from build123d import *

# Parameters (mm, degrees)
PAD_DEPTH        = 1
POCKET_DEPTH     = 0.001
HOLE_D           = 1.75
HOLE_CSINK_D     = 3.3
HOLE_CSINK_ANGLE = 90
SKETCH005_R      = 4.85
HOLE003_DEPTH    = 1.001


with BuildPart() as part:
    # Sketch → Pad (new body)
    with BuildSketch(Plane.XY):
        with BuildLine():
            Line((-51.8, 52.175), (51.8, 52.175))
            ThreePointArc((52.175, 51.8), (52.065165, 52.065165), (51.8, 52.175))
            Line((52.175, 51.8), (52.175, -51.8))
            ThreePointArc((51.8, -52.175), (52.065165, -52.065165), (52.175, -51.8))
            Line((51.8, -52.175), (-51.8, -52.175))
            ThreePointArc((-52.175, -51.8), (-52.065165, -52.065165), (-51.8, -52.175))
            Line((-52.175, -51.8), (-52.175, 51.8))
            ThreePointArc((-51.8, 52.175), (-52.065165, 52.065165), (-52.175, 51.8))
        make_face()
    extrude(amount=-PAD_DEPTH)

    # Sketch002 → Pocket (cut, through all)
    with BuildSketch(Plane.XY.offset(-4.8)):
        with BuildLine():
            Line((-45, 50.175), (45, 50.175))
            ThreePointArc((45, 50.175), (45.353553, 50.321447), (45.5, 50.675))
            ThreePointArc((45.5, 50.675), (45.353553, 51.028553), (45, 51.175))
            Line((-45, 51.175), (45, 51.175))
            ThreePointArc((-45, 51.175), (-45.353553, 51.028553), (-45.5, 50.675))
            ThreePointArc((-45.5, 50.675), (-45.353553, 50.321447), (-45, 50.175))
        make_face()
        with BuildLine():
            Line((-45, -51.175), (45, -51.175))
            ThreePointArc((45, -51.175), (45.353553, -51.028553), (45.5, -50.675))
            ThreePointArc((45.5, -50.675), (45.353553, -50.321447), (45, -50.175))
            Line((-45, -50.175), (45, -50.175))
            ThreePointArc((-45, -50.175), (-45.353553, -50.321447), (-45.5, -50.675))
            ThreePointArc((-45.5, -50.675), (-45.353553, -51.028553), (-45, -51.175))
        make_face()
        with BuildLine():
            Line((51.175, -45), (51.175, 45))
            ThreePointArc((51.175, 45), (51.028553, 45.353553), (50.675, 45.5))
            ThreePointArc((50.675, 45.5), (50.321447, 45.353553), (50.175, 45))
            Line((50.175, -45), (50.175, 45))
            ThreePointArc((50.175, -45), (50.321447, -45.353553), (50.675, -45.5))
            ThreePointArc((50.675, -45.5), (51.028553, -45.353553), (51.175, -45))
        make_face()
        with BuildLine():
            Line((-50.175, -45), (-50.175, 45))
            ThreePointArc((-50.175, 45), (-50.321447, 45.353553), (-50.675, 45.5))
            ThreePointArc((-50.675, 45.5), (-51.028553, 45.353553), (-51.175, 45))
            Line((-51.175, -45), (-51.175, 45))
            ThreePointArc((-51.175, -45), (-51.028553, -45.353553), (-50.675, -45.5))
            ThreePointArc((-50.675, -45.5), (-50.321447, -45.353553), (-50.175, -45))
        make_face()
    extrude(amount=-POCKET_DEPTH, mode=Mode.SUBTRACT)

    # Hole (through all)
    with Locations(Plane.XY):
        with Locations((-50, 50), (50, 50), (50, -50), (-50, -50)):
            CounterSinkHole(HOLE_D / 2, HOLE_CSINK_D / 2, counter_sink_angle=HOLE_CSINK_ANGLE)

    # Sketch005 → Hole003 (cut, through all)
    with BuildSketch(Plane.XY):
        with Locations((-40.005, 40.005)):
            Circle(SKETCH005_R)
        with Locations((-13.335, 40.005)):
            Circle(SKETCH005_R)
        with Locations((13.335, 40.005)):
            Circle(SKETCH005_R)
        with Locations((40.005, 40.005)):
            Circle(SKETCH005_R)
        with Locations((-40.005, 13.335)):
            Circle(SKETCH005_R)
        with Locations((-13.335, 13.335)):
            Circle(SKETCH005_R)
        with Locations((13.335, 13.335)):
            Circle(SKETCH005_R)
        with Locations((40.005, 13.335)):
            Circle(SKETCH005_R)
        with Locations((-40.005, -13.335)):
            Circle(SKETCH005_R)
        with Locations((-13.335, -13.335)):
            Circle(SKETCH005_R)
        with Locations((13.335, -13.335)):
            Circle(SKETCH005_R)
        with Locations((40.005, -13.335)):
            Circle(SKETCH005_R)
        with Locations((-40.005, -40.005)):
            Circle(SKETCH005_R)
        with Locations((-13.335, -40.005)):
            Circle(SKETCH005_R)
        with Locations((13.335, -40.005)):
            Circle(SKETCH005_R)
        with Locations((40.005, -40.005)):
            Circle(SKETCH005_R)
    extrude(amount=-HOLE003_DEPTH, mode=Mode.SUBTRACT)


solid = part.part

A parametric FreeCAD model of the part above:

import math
import FreeCAD as App
import Part
import Sketcher

V = App.Vector
Q = App.Units.Quantity

doc = App.newDocument("Part")
params = doc.addObject("Spreadsheet::Sheet", "Params")
for row, (alias, value) in enumerate([
    ("sketch1_width", "103.6 mm"),
    ("pad1_length", "1 mm"),
    ("sketch2_radius", "0.500001 mm"),
    ("sketch2_width", "90 mm"),
    ("sketch3_diameter", "1.75 mm"),
    ("hole_diameter", "1.75 mm"),
    ("hole_csink_diameter", "3.3 mm"),
    ("sketch4_diameter", "9.7 mm"),
], start=1):
    params.set(f"A{row}", alias)
    params.set(f"B{row}", "=" + value)
    params.setAlias(f"B{row}", alias)

body = doc.addObject("PartDesign::Body", "Body")

# Sketch on XY plane
sketch1 = body.newObject("Sketcher::SketchObject", "Sketch")
sketch1.AttachmentSupport = (doc.getObject("XY_Plane"), [""])
sketch1.MapMode = "FlatFace"
sketch1.addGeometry(Part.LineSegment(V(51.8, 52.17, 0), V(-51.8, 52.17, 0)), False)
sketch1.addGeometry(Part.ArcOfCircle(Part.Circle(V(-51.8, 51.8, 0), V(0, 0, 1), 0.38), math.radians(90), math.radians(180)), False)
sketch1.addGeometry(Part.LineSegment(V(-52.17, 51.8, 0), V(-52.17, -51.8, 0)), False)
sketch1.addGeometry(Part.ArcOfCircle(Part.Circle(V(-51.8, -51.8, 0), V(0, 0, 1), 0.38), math.radians(-180), math.radians(-90)), False)
sketch1.addGeometry(Part.LineSegment(V(-51.8, -52.17, 0), V(51.8, -52.17, 0)), False)
sketch1.addGeometry(Part.ArcOfCircle(Part.Circle(V(51.8, -51.8, 0), V(0, 0, 1), 0.38), math.radians(-90), math.radians(0)), False)
sketch1.addGeometry(Part.LineSegment(V(52.17, -51.8, 0), V(52.17, 51.8, 0)), False)
sketch1.addGeometry(Part.ArcOfCircle(Part.Circle(V(51.8, 51.8, 0), V(0, 0, 1), 0.38), math.radians(0), math.radians(90)), False)
sketch1.addConstraint(Sketcher.Constraint("Tangent", 0, 2, 1, 1))
sketch1.addConstraint(Sketcher.Constraint("Tangent", 1, 2, 2, 1))
sketch1.addConstraint(Sketcher.Constraint("Tangent", 2, 2, 3, 1))
sketch1.addConstraint(Sketcher.Constraint("Tangent", 3, 2, 4, 1))
sketch1.addConstraint(Sketcher.Constraint("Tangent", 4, 2, 5, 1))
sketch1.addConstraint(Sketcher.Constraint("Tangent", 5, 2, 6, 1))
sketch1.addConstraint(Sketcher.Constraint("Tangent", 6, 2, 7, 1))
sketch1.addConstraint(Sketcher.Constraint("Tangent", 7, 2, 0, 1))
sketch1.addConstraint(Sketcher.Constraint("Horizontal", 0))
sketch1.addConstraint(Sketcher.Constraint("Vertical", 2))
sketch1.addConstraint(Sketcher.Constraint("Horizontal", 4))
sketch1.addConstraint(Sketcher.Constraint("Vertical", 6))
sketch1.addConstraint(Sketcher.Constraint("Equal", 1, 3))
sketch1.addConstraint(Sketcher.Constraint("Equal", 3, 5))
sketch1.addConstraint(Sketcher.Constraint("Equal", 5, 7))
sketch1.addConstraint(Sketcher.Constraint("Symmetric", 1, 3, 5, 3, -1, 1))
sketch1.addConstraint(Sketcher.Constraint("Equal", 4, 2))
sketch1.addConstraint(Sketcher.Constraint("DistanceX", 0, 2, 0, 1, Q("103.6 mm")))
sketch1.addConstraint(Sketcher.Constraint("Radius", 1, Q("0.375 mm")))
sketch1.setExpression("Constraints[17]", "Params.sketch1_width")
pad1 = body.newObject("PartDesign::Pad", "Pad")
pad1.Profile = sketch1
pad1.setExpression("Length", "Params.pad1_length")
pad1.Reversed = True

# Sketch on XY plane
sketch2 = body.newObject("Sketcher::SketchObject", "Sketch001")
sketch2.AttachmentSupport = (doc.getObject("XY_Plane"), [""])
sketch2.MapMode = "FlatFace"
sketch2.AttachmentOffset = App.Placement(V(0, 0, -4.8), App.Rotation())
sketch2.addGeometry(Part.LineSegment(V(-45, 50.2, 0), V(45, 50.2, 0)), False)
sketch2.addGeometry(Part.ArcOfCircle(Part.Circle(V(45, 50.7, 0), V(0, 0, 1), 0.5), math.radians(-90), math.radians(0)), False)
sketch2.addGeometry(Part.ArcOfCircle(Part.Circle(V(45, 50.7, 0), V(0, 0, 1), 0.5), math.radians(0), math.radians(90)), False)
sketch2.addGeometry(Part.LineSegment(V(45, 51.2, 0), V(-45, 51.2, 0)), False)
sketch2.addGeometry(Part.ArcOfCircle(Part.Circle(V(-45, 50.7, 0), V(0, 0, 1), 0.5), math.radians(90), math.radians(180)), False)
sketch2.addGeometry(Part.ArcOfCircle(Part.Circle(V(-45, 50.7, 0), V(0, 0, 1), 0.5), math.radians(-180), math.radians(-90)), False)
sketch2.addGeometry(Part.LineSegment(V(-45, -51.2, 0), V(45, -51.2, 0)), False)
sketch2.addGeometry(Part.ArcOfCircle(Part.Circle(V(45, -50.7, 0), V(0, 0, 1), 0.5), math.radians(-90), math.radians(0)), False)
sketch2.addGeometry(Part.ArcOfCircle(Part.Circle(V(45, -50.7, 0), V(0, 0, 1), 0.5), math.radians(0), math.radians(90)), False)
sketch2.addGeometry(Part.LineSegment(V(45, -50.2, 0), V(-45, -50.2, 0)), False)
sketch2.addGeometry(Part.ArcOfCircle(Part.Circle(V(-45, -50.7, 0), V(0, 0, 1), 0.5), math.radians(90), math.radians(180)), False)
sketch2.addGeometry(Part.ArcOfCircle(Part.Circle(V(-45, -50.7, 0), V(0, 0, 1), 0.5), math.radians(-180), math.radians(-90)), False)
sketch2.addGeometry(Part.LineSegment(V(51.2, -45, 0), V(51.2, 45, 0)), False)
sketch2.addGeometry(Part.ArcOfCircle(Part.Circle(V(50.7, 45, 0), V(0, 0, 1), 0.5), math.radians(0), math.radians(90)), False)
sketch2.addGeometry(Part.ArcOfCircle(Part.Circle(V(50.7, 45, 0), V(0, 0, 1), 0.5), math.radians(90), math.radians(180)), False)
sketch2.addGeometry(Part.LineSegment(V(50.2, 45, 0), V(50.2, -45, 0)), False)
sketch2.addGeometry(Part.ArcOfCircle(Part.Circle(V(50.7, -45, 0), V(0, 0, 1), 0.5), math.radians(-180), math.radians(-90)), False)
sketch2.addGeometry(Part.ArcOfCircle(Part.Circle(V(50.7, -45, 0), V(0, 0, 1), 0.5), math.radians(-90), math.radians(0)), False)
sketch2.addGeometry(Part.LineSegment(V(-50.2, -45, 0), V(-50.2, 45, 0)), False)
sketch2.addGeometry(Part.ArcOfCircle(Part.Circle(V(-50.7, 45, 0), V(0, 0, 1), 0.5), math.radians(0), math.radians(90)), False)
sketch2.addGeometry(Part.ArcOfCircle(Part.Circle(V(-50.7, 45, 0), V(0, 0, 1), 0.5), math.radians(90), math.radians(180)), False)
sketch2.addGeometry(Part.LineSegment(V(-51.2, 45, 0), V(-51.2, -45, 0)), False)
sketch2.addGeometry(Part.ArcOfCircle(Part.Circle(V(-50.7, -45, 0), V(0, 0, 1), 0.5), math.radians(-180), math.radians(-90)), False)
sketch2.addGeometry(Part.ArcOfCircle(Part.Circle(V(-50.7, -45, 0), V(0, 0, 1), 0.5), math.radians(-90), math.radians(0)), False)
sketch2.addConstraint(Sketcher.Constraint("Coincident", 0, 2, 1, 1))
sketch2.addConstraint(Sketcher.Constraint("Coincident", 1, 2, 2, 1))
sketch2.addConstraint(Sketcher.Constraint("Coincident", 2, 2, 3, 1))
sketch2.addConstraint(Sketcher.Constraint("Coincident", 3, 2, 4, 1))
sketch2.addConstraint(Sketcher.Constraint("Coincident", 4, 2, 5, 1))
sketch2.addConstraint(Sketcher.Constraint("Coincident", 5, 2, 0, 1))
sketch2.addConstraint(Sketcher.Constraint("Coincident", 6, 2, 7, 1))
sketch2.addConstraint(Sketcher.Constraint("Coincident", 7, 2, 8, 1))
sketch2.addConstraint(Sketcher.Constraint("Coincident", 8, 2, 9, 1))
sketch2.addConstraint(Sketcher.Constraint("Coincident", 9, 2, 10, 1))
sketch2.addConstraint(Sketcher.Constraint("Coincident", 10, 2, 11, 1))
sketch2.addConstraint(Sketcher.Constraint("Coincident", 11, 2, 6, 1))
sketch2.addConstraint(Sketcher.Constraint("Coincident", 12, 2, 13, 1))
sketch2.addConstraint(Sketcher.Constraint("Coincident", 13, 2, 14, 1))
sketch2.addConstraint(Sketcher.Constraint("Coincident", 14, 2, 15, 1))
sketch2.addConstraint(Sketcher.Constraint("Coincident", 15, 2, 16, 1))
sketch2.addConstraint(Sketcher.Constraint("Coincident", 16, 2, 17, 1))
sketch2.addConstraint(Sketcher.Constraint("Coincident", 17, 2, 12, 1))
sketch2.addConstraint(Sketcher.Constraint("Coincident", 18, 2, 19, 1))
sketch2.addConstraint(Sketcher.Constraint("Coincident", 19, 2, 20, 1))
sketch2.addConstraint(Sketcher.Constraint("Coincident", 20, 2, 21, 1))
sketch2.addConstraint(Sketcher.Constraint("Coincident", 21, 2, 22, 1))
sketch2.addConstraint(Sketcher.Constraint("Coincident", 22, 2, 23, 1))
sketch2.addConstraint(Sketcher.Constraint("Coincident", 23, 2, 18, 1))
sketch2.addConstraint(Sketcher.Constraint("Horizontal", 0))
sketch2.addConstraint(Sketcher.Constraint("Horizontal", 3))
sketch2.addConstraint(Sketcher.Constraint("Horizontal", 6))
sketch2.addConstraint(Sketcher.Constraint("Horizontal", 9))
sketch2.addConstraint(Sketcher.Constraint("Vertical", 12))
sketch2.addConstraint(Sketcher.Constraint("Vertical", 15))
sketch2.addConstraint(Sketcher.Constraint("Vertical", 18))
sketch2.addConstraint(Sketcher.Constraint("Vertical", 21))
sketch2.addConstraint(Sketcher.Constraint("Coincident", 2, 3, 1, 3))
sketch2.addConstraint(Sketcher.Constraint("Coincident", 5, 3, 4, 3))
sketch2.addConstraint(Sketcher.Constraint("Coincident", 8, 3, 7, 3))
sketch2.addConstraint(Sketcher.Constraint("Coincident", 11, 3, 10, 3))
sketch2.addConstraint(Sketcher.Constraint("Coincident", 14, 3, 13, 3))
sketch2.addConstraint(Sketcher.Constraint("Coincident", 17, 3, 16, 3))
sketch2.addConstraint(Sketcher.Constraint("Coincident", 20, 3, 19, 3))
sketch2.addConstraint(Sketcher.Constraint("Coincident", 23, 3, 22, 3))
sketch2.addConstraint(Sketcher.Constraint("Equal", 5, 7))
sketch2.addConstraint(Sketcher.Constraint("Equal", 11, 13))
sketch2.addConstraint(Sketcher.Constraint("Equal", 17, 19))
sketch2.addConstraint(Sketcher.Constraint("Symmetric", 4, 3, 7, 3, -1, 1))
sketch2.addConstraint(Sketcher.Constraint("Symmetric", 16, 3, 19, 3, -1, 1))
sketch2.addConstraint(Sketcher.Constraint("Symmetric", 1, 2, 10, 2, -1, 1))
sketch2.addConstraint(Sketcher.Constraint("Symmetric", 13, 2, 22, 2, -1, 1))
sketch2.addConstraint(Sketcher.Constraint("Symmetric", 1, 2, 4, 2, -2))
sketch2.addConstraint(Sketcher.Constraint("Symmetric", 13, 2, 19, 2, -2))
sketch2.addConstraint(Sketcher.Constraint("Horizontal", 5, 3, 1, 2))
sketch2.addConstraint(Sketcher.Constraint("Horizontal", 11, 3, 7, 2))
sketch2.addConstraint(Sketcher.Constraint("Horizontal", 20, 3, 12, 2))
sketch2.addConstraint(Sketcher.Constraint("Horizontal", 12, 2, 14, 2))
sketch2.addConstraint(Sketcher.Constraint("Horizontal", 23, 3, 15, 2))
sketch2.addConstraint(Sketcher.Constraint("Horizontal", 15, 2, 17, 2))
sketch2.addConstraint(Sketcher.Constraint("Horizontal", 14, 2, 18, 2))
sketch2.addConstraint(Sketcher.Constraint("Horizontal", 18, 2, 20, 2))
sketch2.addConstraint(Sketcher.Constraint("Horizontal", 17, 2, 21, 2))
sketch2.addConstraint(Sketcher.Constraint("Horizontal", 21, 2, 23, 2))
sketch2.addConstraint(Sketcher.Constraint("Vertical", 8, 3, 0, 2))
sketch2.addConstraint(Sketcher.Constraint("Vertical", 0, 2, 2, 2))
sketch2.addConstraint(Sketcher.Constraint("Vertical", 11, 3, 3, 2))
sketch2.addConstraint(Sketcher.Constraint("Vertical", 3, 2, 5, 2))
sketch2.addConstraint(Sketcher.Constraint("Vertical", 2, 2, 6, 2))
sketch2.addConstraint(Sketcher.Constraint("Vertical", 6, 2, 8, 2))
sketch2.addConstraint(Sketcher.Constraint("Vertical", 5, 2, 9, 2))
sketch2.addConstraint(Sketcher.Constraint("Vertical", 9, 2, 11, 2))
sketch2.addConstraint(Sketcher.Constraint("Vertical", 17, 3, 13, 2))
sketch2.addConstraint(Sketcher.Constraint("Vertical", 13, 2, 16, 2))
sketch2.addConstraint(Sketcher.Constraint("Equal", 9, 12))
sketch2.addConstraint(Sketcher.Constraint("Radius", 1, Q("0.500001 mm")))
sketch2.addConstraint(Sketcher.Constraint("DistanceX", 0, 1, 0, 2, Q("90 mm")))
sketch2.addConstraint(Sketcher.Constraint("DistanceY", 7, 3, 1, 3, Q("101.35 mm")))
sketch2.addConstraint(Sketcher.Constraint("DistanceX", -1, 1, 13, 3, Q("50.674999 mm")))
sketch2.setExpression("Constraints[70]", "Params.sketch2_radius")
sketch2.setExpression("Constraints[71]", "Params.sketch2_width")
pocket1 = body.newObject("PartDesign::Pocket", "Pocket")
pocket1.Profile = sketch2
pocket1.Type = "ThroughAll"

# Sketch on XY plane
sketch3 = body.newObject("Sketcher::SketchObject", "Sketch002")
sketch3.AttachmentSupport = (doc.getObject("XY_Plane"), [""])
sketch3.MapMode = "FlatFace"
sketch3.addGeometry(Part.Circle(V(-50, 50, 0), V(0, 0, 1), 0.9), False)
sketch3.addGeometry(Part.Circle(V(50, 50, 0), V(0, 0, 1), 0.9), False)
sketch3.addGeometry(Part.Circle(V(50, -50, 0), V(0, 0, 1), 0.9), False)
sketch3.addGeometry(Part.Circle(V(-50, -50, 0), V(0, 0, 1), 0.9), False)
sketch3.addConstraint(Sketcher.Constraint("Equal", 0, 1))
sketch3.addConstraint(Sketcher.Constraint("Equal", 1, 2))
sketch3.addConstraint(Sketcher.Constraint("Equal", 2, 3))
sketch3.addConstraint(Sketcher.Constraint("Symmetric", 0, 3, 2, 3, -1, 1))
sketch3.addConstraint(Sketcher.Constraint("Symmetric", 1, 3, 3, 3, -1, 1))
sketch3.addConstraint(Sketcher.Constraint("Symmetric", 0, 3, 1, 3, -2))
sketch3.addConstraint(Sketcher.Constraint("Diameter", 0, Q("1.75 mm")))
sketch3.addConstraint(Sketcher.Constraint("DistanceX", 0, 3, -1, 1, Q("50 mm")))
sketch3.addConstraint(Sketcher.Constraint("DistanceY", -1, 1, 0, 3, Q("50 mm")))
sketch3.setExpression("Constraints[6]", "Params.sketch3_diameter")
doc.recompute()
hole = body.newObject("PartDesign::Hole", "Hole")
hole.Profile = sketch3
hole.ThreadType = "None"
hole.setExpression("Diameter", "Params.hole_diameter")
hole.DepthType = "ThroughAll"
hole.HoleCutType = "Countersink"
hole.setExpression("HoleCutDiameter", "Params.hole_csink_diameter")
hole.HoleCutCountersinkAngle = 90

# Sketch on XY plane
sketch4 = body.newObject("Sketcher::SketchObject", "Sketch003")
sketch4.AttachmentSupport = (doc.getObject("XY_Plane"), [""])
sketch4.MapMode = "FlatFace"
sketch4.addGeometry(Part.Circle(V(-40, 40, 0), V(0, 0, 1), 4.8), False)
sketch4.addGeometry(Part.Circle(V(-13.3, 40, 0), V(0, 0, 1), 4.8), False)
sketch4.addGeometry(Part.Circle(V(13.3, 40, 0), V(0, 0, 1), 4.8), False)
sketch4.addGeometry(Part.Circle(V(40, 40, 0), V(0, 0, 1), 4.8), False)
sketch4.addGeometry(Part.Circle(V(-40, 13.3, 0), V(0, 0, 1), 4.8), False)
sketch4.addGeometry(Part.Circle(V(-13.3, 13.3, 0), V(0, 0, 1), 4.8), False)
sketch4.addGeometry(Part.Circle(V(13.3, 13.3, 0), V(0, 0, 1), 4.8), False)
sketch4.addGeometry(Part.Circle(V(40, 13.3, 0), V(0, 0, 1), 4.8), False)
sketch4.addGeometry(Part.Circle(V(-40, -13.3, 0), V(0, 0, 1), 4.8), False)
sketch4.addGeometry(Part.Circle(V(-13.3, -13.3, 0), V(0, 0, 1), 4.8), False)
sketch4.addGeometry(Part.Circle(V(13.3, -13.3, 0), V(0, 0, 1), 4.8), False)
sketch4.addGeometry(Part.Circle(V(40, -13.3, 0), V(0, 0, 1), 4.8), False)
sketch4.addGeometry(Part.Circle(V(-40, -40, 0), V(0, 0, 1), 4.8), False)
sketch4.addGeometry(Part.Circle(V(-13.3, -40, 0), V(0, 0, 1), 4.8), False)
sketch4.addGeometry(Part.Circle(V(13.3, -40, 0), V(0, 0, 1), 4.8), False)
sketch4.addGeometry(Part.Circle(V(40, -40, 0), V(0, 0, 1), 4.8), False)
sketch4.addConstraint(Sketcher.Constraint("Equal", 0, 1))
sketch4.addConstraint(Sketcher.Constraint("Equal", 1, 2))
sketch4.addConstraint(Sketcher.Constraint("Equal", 2, 3))
sketch4.addConstraint(Sketcher.Constraint("Equal", 3, 4))
sketch4.addConstraint(Sketcher.Constraint("Equal", 4, 5))
sketch4.addConstraint(Sketcher.Constraint("Equal", 5, 6))
sketch4.addConstraint(Sketcher.Constraint("Equal", 6, 7))
sketch4.addConstraint(Sketcher.Constraint("Equal", 7, 8))
sketch4.addConstraint(Sketcher.Constraint("Equal", 8, 9))
sketch4.addConstraint(Sketcher.Constraint("Equal", 9, 10))
sketch4.addConstraint(Sketcher.Constraint("Equal", 10, 11))
sketch4.addConstraint(Sketcher.Constraint("Equal", 11, 12))
sketch4.addConstraint(Sketcher.Constraint("Equal", 12, 13))
sketch4.addConstraint(Sketcher.Constraint("Equal", 13, 14))
sketch4.addConstraint(Sketcher.Constraint("Equal", 14, 15))
sketch4.addConstraint(Sketcher.Constraint("Symmetric", 7, 3, 8, 3, -1, 1))
sketch4.addConstraint(Sketcher.Constraint("Symmetric", 6, 3, 9, 3, -1, 1))
sketch4.addConstraint(Sketcher.Constraint("Symmetric", 5, 3, 10, 3, -1, 1))
sketch4.addConstraint(Sketcher.Constraint("Symmetric", 4, 3, 11, 3, -1, 1))
sketch4.addConstraint(Sketcher.Constraint("Symmetric", 3, 3, 12, 3, -1, 1))
sketch4.addConstraint(Sketcher.Constraint("Symmetric", 2, 3, 13, 3, -1, 1))
sketch4.addConstraint(Sketcher.Constraint("Symmetric", 1, 3, 14, 3, -1, 1))
sketch4.addConstraint(Sketcher.Constraint("Symmetric", 0, 3, 15, 3, -1, 1))
sketch4.addConstraint(Sketcher.Constraint("Symmetric", 1, 3, 2, 3, -2))
sketch4.addConstraint(Sketcher.Constraint("Symmetric", 0, 3, 3, 3, -2))
sketch4.addConstraint(Sketcher.Constraint("Symmetric", 5, 3, 6, 3, -2))
sketch4.addConstraint(Sketcher.Constraint("Symmetric", 4, 3, 7, 3, -2))
sketch4.addConstraint(Sketcher.Constraint("Horizontal", 0, 3, 1, 3))
sketch4.addConstraint(Sketcher.Constraint("Horizontal", 4, 3, 5, 3))
sketch4.addConstraint(Sketcher.Constraint("Vertical", 0, 3, 4, 3))
sketch4.addConstraint(Sketcher.Constraint("Vertical", 1, 3, 5, 3))
sketch4.addConstraint(Sketcher.Constraint("Diameter", 0, Q("9.7 mm")))
sketch4.addConstraint(Sketcher.Constraint("DistanceX", 0, 3, 1, 3, Q("26.67 mm")))
sketch4.addConstraint(Sketcher.Constraint("DistanceX", 1, 3, 2, 3, Q("26.67 mm")))
sketch4.addConstraint(Sketcher.Constraint("DistanceY", 4, 3, 0, 3, Q("26.67 mm")))
sketch4.addConstraint(Sketcher.Constraint("DistanceY", 8, 3, 4, 3, Q("26.67 mm")))
sketch4.setExpression("Constraints[31]", "Params.sketch4_diameter")
pocket2 = body.newObject("PartDesign::Pocket", "Pocket001")
pocket2.Profile = sketch4
pocket2.Type = "ThroughAll"

doc.recompute()
